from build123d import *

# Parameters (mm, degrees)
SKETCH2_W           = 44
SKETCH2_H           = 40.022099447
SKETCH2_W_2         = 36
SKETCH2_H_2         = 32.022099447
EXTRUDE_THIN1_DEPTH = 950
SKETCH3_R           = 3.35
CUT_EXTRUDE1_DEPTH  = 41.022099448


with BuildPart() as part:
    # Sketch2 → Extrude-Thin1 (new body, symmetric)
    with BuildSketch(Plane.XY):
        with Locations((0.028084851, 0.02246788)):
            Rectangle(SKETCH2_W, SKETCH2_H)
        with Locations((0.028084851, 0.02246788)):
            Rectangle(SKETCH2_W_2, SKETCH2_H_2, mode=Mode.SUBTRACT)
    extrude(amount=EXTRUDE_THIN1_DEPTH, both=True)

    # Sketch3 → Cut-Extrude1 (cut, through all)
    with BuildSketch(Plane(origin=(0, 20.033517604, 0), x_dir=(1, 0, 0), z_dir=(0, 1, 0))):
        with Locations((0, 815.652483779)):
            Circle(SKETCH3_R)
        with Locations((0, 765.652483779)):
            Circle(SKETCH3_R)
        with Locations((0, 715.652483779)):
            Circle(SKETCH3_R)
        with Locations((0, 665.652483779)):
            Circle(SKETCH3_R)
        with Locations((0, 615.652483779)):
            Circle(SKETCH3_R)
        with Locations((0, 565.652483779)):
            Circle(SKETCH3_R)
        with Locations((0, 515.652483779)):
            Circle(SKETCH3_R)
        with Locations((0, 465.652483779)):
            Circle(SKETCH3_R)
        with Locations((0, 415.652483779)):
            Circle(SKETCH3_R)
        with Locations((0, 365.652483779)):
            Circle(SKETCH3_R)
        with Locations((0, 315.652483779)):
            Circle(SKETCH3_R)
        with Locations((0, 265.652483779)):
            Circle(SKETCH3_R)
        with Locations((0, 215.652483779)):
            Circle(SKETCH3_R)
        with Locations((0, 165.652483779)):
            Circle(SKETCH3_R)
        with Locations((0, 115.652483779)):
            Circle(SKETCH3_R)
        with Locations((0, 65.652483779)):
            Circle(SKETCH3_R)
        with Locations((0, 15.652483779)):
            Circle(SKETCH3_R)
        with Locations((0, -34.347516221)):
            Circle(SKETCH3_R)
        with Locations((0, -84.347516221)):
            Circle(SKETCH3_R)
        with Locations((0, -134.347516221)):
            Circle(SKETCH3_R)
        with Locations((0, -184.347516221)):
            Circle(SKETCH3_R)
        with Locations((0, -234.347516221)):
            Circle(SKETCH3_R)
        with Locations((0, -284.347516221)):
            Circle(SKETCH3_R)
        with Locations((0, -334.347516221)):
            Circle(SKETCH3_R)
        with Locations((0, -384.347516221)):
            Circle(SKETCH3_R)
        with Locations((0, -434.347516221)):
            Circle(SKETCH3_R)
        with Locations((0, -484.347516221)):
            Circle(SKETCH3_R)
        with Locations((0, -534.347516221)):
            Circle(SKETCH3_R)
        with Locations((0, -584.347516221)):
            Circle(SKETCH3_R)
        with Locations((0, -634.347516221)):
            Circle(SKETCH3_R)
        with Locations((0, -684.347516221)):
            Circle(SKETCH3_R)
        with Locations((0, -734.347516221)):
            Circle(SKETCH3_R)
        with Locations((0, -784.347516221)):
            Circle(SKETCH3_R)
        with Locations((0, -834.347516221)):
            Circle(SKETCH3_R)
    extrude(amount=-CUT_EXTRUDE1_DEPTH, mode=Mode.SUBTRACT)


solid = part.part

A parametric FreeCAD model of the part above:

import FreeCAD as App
import Part
import Sketcher
from FreeCAD import Vector
Q = App.Units.Quantity


def add_polygon(sketch, points):
    """Adds a closed chain of lines whose ends are joined by coincident constraints."""
    first, n = sketch.GeometryCount, len(points)
    for a, b in zip(points, points[1:] + points[:1]):
        sketch.addGeometry(Part.LineSegment(App.Vector(*a, 0), App.Vector(*b, 0)), False)
    for i in range(n):
        sketch.addConstraint(Sketcher.Constraint("Coincident", first + i, 2, first + (i + 1) % n, 1))

doc = App.newDocument("Part")
body = doc.addObject("PartDesign::Body", "Body")

# Sketch on XY plane
sketch1 = body.newObject("Sketcher::SketchObject", "Sketch")
sketch1.AttachmentSupport = (doc.getObject("XY_Plane"), [""])
sketch1.MapMode = "FlatFace"
add_polygon(sketch1, [(-22, 20), (-22, -20), (22, -20), (22, 20)])  # lines 0-3
add_polygon(sketch1, [(18, -16), (-18, -16), (-18, 16), (18, 16)])  # lines 4-7
sketch1.addConstraint([
    Sketcher.Constraint("Vertical", 0),
    Sketcher.Constraint("Horizontal", 1),
    Sketcher.Constraint("Vertical", 2),
    Sketcher.Constraint("Horizontal", 3),
    Sketcher.Constraint("Horizontal", 4),
    Sketcher.Constraint("Vertical", 5),
    Sketcher.Constraint("Horizontal", 6),
    Sketcher.Constraint("Vertical", 7),
    Sketcher.Constraint("DistanceX", 1, 1, 1, 2, Q("44 mm")),
    Sketcher.Constraint("DistanceX", 4, 2, 4, 1, Q("36 mm")),
    Sketcher.Constraint("DistanceX", 0, 2, 4, 2, Q("4 mm")),
    Sketcher.Constraint("DistanceY", 0, 2, 4, 2, Q("4 mm")),
    Sketcher.Constraint("DistanceY", 5, 2, 3, 2, Q("4 mm")),
    Sketcher.Constraint("DistanceY", 0, 2, 0, 1, Q("40.022099 mm")),
    Sketcher.Constraint("DistanceY", 0, 2, -1, 1, Q("19.988582 mm")),
    Sketcher.Constraint("DistanceX", 0, 2, -1, 1, Q("21.971915 mm")),
])
pad1 = body.newObject("PartDesign::Pad", "Pad")
pad1.Profile = sketch1
pad1.Length = 1900
pad1.Midplane = True

# Sketch on XZ plane
sketch2 = body.newObject("Sketcher::SketchObject", "Sketch001")
sketch2.AttachmentSupport = (doc.getObject("XZ_Plane"), [""])
sketch2.MapMode = "FlatFace"
sketch2.AttachmentOffset = App.Placement(Vector(0, 0, -20.033518), App.Rotation())
sketch2.addGeometry([
    Part.Circle(Vector(0, -815.7, 0), Vector(0, 0, 1), 3.4),  # 0
    Part.Circle(Vector(0, -765.7, 0), Vector(0, 0, 1), 3.4),  # 1
    Part.Circle(Vector(0, -715.7, 0), Vector(0, 0, 1), 3.4),  # 2
    Part.Circle(Vector(0, -665.7, 0), Vector(0, 0, 1), 3.4),  # 3
    Part.Circle(Vector(0, -615.7, 0), Vector(0, 0, 1), 3.4),  # 4
    Part.Circle(Vector(0, -565.7, 0), Vector(0, 0, 1), 3.4),  # 5
    Part.Circle(Vector(0, -515.7, 0), Vector(0, 0, 1), 3.4),  # 6
    Part.Circle(Vector(0, -465.7, 0), Vector(0, 0, 1), 3.4),  # 7
    Part.Circle(Vector(0, -415.7, 0), Vector(0, 0, 1), 3.4),  # 8
    Part.Circle(Vector(0, -365.7, 0), Vector(0, 0, 1), 3.4),  # 9
    Part.Circle(Vector(0, -315.7, 0), Vector(0, 0, 1), 3.4),  # 10
    Part.Circle(Vector(0, -265.7, 0), Vector(0, 0, 1), 3.4),  # 11
    Part.Circle(Vector(0, -215.7, 0), Vector(0, 0, 1), 3.4),  # 12
    Part.Circle(Vector(0, -165.7, 0), Vector(0, 0, 1), 3.4),  # 13
    Part.Circle(Vector(0, -115.7, 0), Vector(0, 0, 1), 3.4),  # 14
    Part.Circle(Vector(0, -65.7, 0), Vector(0, 0, 1), 3.4),  # 15
    Part.Circle(Vector(0, -15.7, 0), Vector(0, 0, 1), 3.4),  # 16
    Part.Circle(Vector(0, 34.3, 0), Vector(0, 0, 1), 3.4),  # 17
    Part.Circle(Vector(0, 84.3, 0), Vector(0, 0, 1), 3.4),  # 18
    Part.Circle(Vector(0, 134.3, 0), Vector(0, 0, 1), 3.4),  # 19
    Part.Circle(Vector(0, 184.3, 0), Vector(0, 0, 1), 3.4),  # 20
    Part.Circle(Vector(0, 234.3, 0), Vector(0, 0, 1), 3.4),  # 21
    Part.Circle(Vector(0, 284.3, 0), Vector(0, 0, 1), 3.4),  # 22
    Part.Circle(Vector(0, 334.3, 0), Vector(0, 0, 1), 3.4),  # 23
    Part.Circle(Vector(0, 384.3, 0), Vector(0, 0, 1), 3.4),  # 24
    Part.Circle(Vector(0, 434.3, 0), Vector(0, 0, 1), 3.4),  # 25
    Part.Circle(Vector(0, 484.3, 0), Vector(0, 0, 1), 3.4),  # 26
    Part.Circle(Vector(0, 534.3, 0), Vector(0, 0, 1), 3.4),  # 27
    Part.Circle(Vector(0, 584.3, 0), Vector(0, 0, 1), 3.4),  # 28
    Part.Circle(Vector(0, 634.3, 0), Vector(0, 0, 1), 3.4),  # 29
    Part.Circle(Vector(0, 684.3, 0), Vector(0, 0, 1), 3.4),  # 30
    Part.Circle(Vector(0, 734.3, 0), Vector(0, 0, 1), 3.4),  # 31
    Part.Circle(Vector(0, 784.3, 0), Vector(0, 0, 1), 3.4),  # 32
    Part.Circle(Vector(0, 834.3, 0), Vector(0, 0, 1), 3.4),  # 33
], False)
sketch2.addConstraint([
    Sketcher.Constraint("Equal", 0, 1),
    Sketcher.Constraint("Equal", 1, 2),
    Sketcher.Constraint("Equal", 2, 3),
    Sketcher.Constraint("Equal", 3, 4),
    Sketcher.Constraint("Equal", 4, 5),
    Sketcher.Constraint("Equal", 5, 6),
    Sketcher.Constraint("Equal", 6, 7),
    Sketcher.Constraint("Equal", 7, 8),
    Sketcher.Constraint("Equal", 8, 9),
    Sketcher.Constraint("Equal", 9, 10),
    Sketcher.Constraint("Equal", 10, 11),
    Sketcher.Constraint("Equal", 11, 12),
    Sketcher.Constraint("Equal", 12, 13),
    Sketcher.Constraint("Equal", 13, 14),
    Sketcher.Constraint("Equal", 14, 15),
    Sketcher.Constraint("Equal", 15, 16),
    Sketcher.Constraint("Equal", 16, 17),
    Sketcher.Constraint("Equal", 17, 18),
    Sketcher.Constraint("Equal", 18, 19),
    Sketcher.Constraint("Equal", 19, 20),
    Sketcher.Constraint("Equal", 20, 21),
    Sketcher.Constraint("Equal", 21, 22),
    Sketcher.Constraint("Equal", 22, 23),
    Sketcher.Constraint("Equal", 23, 24),
    Sketcher.Constraint("Equal", 24, 25),
    Sketcher.Constraint("Equal", 25, 26),
    Sketcher.Constraint("Equal", 26, 27),
    Sketcher.Constraint("Equal", 27, 28),
    Sketcher.Constraint("Equal", 28, 29),
    Sketcher.Constraint("Equal", 29, 30),
    Sketcher.Constraint("Equal", 30, 31),
    Sketcher.Constraint("Equal", 31, 32),
    Sketcher.Constraint("Equal", 32, 33),
    Sketcher.Constraint("PointOnObject", 0, 3, -2),
    Sketcher.Constraint("PointOnObject", 1, 3, -2),
    Sketcher.Constraint("PointOnObject", 2, 3, -2),
    Sketcher.Constraint("PointOnObject", 3, 3, -2),
    Sketcher.Constraint("PointOnObject", 4, 3, -2),
    Sketcher.Constraint("PointOnObject", 5, 3, -2),
    Sketcher.Constraint("PointOnObject", 6, 3, -2),
    Sketcher.Constraint("PointOnObject", 7, 3, -2),
    Sketcher.Constraint("PointOnObject", 8, 3, -2),
    Sketcher.Constraint("PointOnObject", 9, 3, -2),
    Sketcher.Constraint("PointOnObject", 10, 3, -2),
    Sketcher.Constraint("PointOnObject", 11, 3, -2),
    Sketcher.Constraint("PointOnObject", 12, 3, -2),
    Sketcher.Constraint("PointOnObject", 13, 3, -2),
    Sketcher.Constraint("PointOnObject", 14, 3, -2),
    Sketcher.Constraint("PointOnObject", 15, 3, -2),
    Sketcher.Constraint("PointOnObject", 16, 3, -2),
    Sketcher.Constraint("PointOnObject", 17, 3, -2),
    Sketcher.Constraint("PointOnObject", 18, 3, -2),
    Sketcher.Constraint("PointOnObject", 19, 3, -2),
    Sketcher.Constraint("PointOnObject", 20, 3, -2),
    Sketcher.Constraint("PointOnObject", 21, 3, -2),
    Sketcher.Constraint("PointOnObject", 22, 3, -2),
    Sketcher.Constraint("PointOnObject", 23, 3, -2),
    Sketcher.Constraint("PointOnObject", 24, 3, -2),
    Sketcher.Constraint("PointOnObject", 25, 3, -2),
    Sketcher.Constraint("PointOnObject", 26, 3, -2),
    Sketcher.Constraint("PointOnObject", 27, 3, -2),
    Sketcher.Constraint("PointOnObject", 28, 3, -2),
    Sketcher.Constraint("PointOnObject", 29, 3, -2),
    Sketcher.Constraint("PointOnObject", 30, 3, -2),
    Sketcher.Constraint("PointOnObject", 31, 3, -2),
    Sketcher.Constraint("PointOnObject", 32, 3, -2),
    Sketcher.Constraint("PointOnObject", 33, 3, -2),
    Sketcher.Constraint("Diameter", 0, Q("6.7 mm")),
    Sketcher.Constraint("DistanceY", 0, 3, 1, 3, Q("50 mm")),
    Sketcher.Constraint("DistanceY", 1, 3, 2, 3, Q("50 mm")),
    Sketcher.Constraint("DistanceY", 2, 3, 3, 3, Q("50 mm")),
    Sketcher.Constraint("DistanceY", 3, 3, 4, 3, Q("50 mm")),
    Sketcher.Constraint("DistanceY", 4, 3, 5, 3, Q("50 mm")),
    Sketcher.Constraint("DistanceY", 5, 3, 6, 3, Q("50 mm")),
    Sketcher.Constraint("DistanceY", 6, 3, 7, 3, Q("50 mm")),
    Sketcher.Constraint("DistanceY", 7, 3, 8, 3, Q("50 mm")),
    Sketcher.Constraint("DistanceY", 8, 3, 9, 3, Q("50 mm")),
    Sketcher.Constraint("DistanceY", 9, 3, 10, 3, Q("50 mm")),
    Sketcher.Constraint("DistanceY", 10, 3, 11, 3, Q("50 mm")),
    Sketcher.Constraint("DistanceY", 11, 3, 12, 3, Q("50 mm")),
    Sketcher.Constraint("DistanceY", 12, 3, 13, 3, Q("50 mm")),
    Sketcher.Constraint("DistanceY", 13, 3, 14, 3, Q("50 mm")),
    Sketcher.Constraint("DistanceY", 14, 3, 15, 3, Q("50 mm")),
    Sketcher.Constraint("DistanceY", 15, 3, 16, 3, Q("50 mm")),
    Sketcher.Constraint("DistanceY", 16, 3, 17, 3, Q("50 mm")),
    Sketcher.Constraint("DistanceY", 17, 3, 18, 3, Q("50 mm")),
    Sketcher.Constraint("DistanceY", 18, 3, 19, 3, Q("50 mm")),
    Sketcher.Constraint("DistanceY", 19, 3, 20, 3, Q("50 mm")),
    Sketcher.Constraint("DistanceY", 20, 3, 21, 3, Q("50 mm")),
    Sketcher.Constraint("DistanceY", 21, 3, 22, 3, Q("50 mm")),
    Sketcher.Constraint("DistanceY", 22, 3, 23, 3, Q("50 mm")),
    Sketcher.Constraint("DistanceY", 23, 3, 24, 3, Q("50 mm")),
    Sketcher.Constraint("DistanceY", 24, 3, 25, 3, Q("50 mm")),
    Sketcher.Constraint("DistanceY", 25, 3, 26, 3, Q("50 mm")),
    Sketcher.Constraint("DistanceY", 26, 3, 27, 3, Q("50 mm")),
    Sketcher.Constraint("DistanceY", 27, 3, 28, 3, Q("50 mm")),
    Sketcher.Constraint("DistanceY", 28, 3, 29, 3, Q("50 mm")),
    Sketcher.Constraint("DistanceY", 29, 3, 30, 3, Q("50 mm")),
    Sketcher.Constraint("DistanceY", 30, 3, 31, 3, Q("50 mm")),
    Sketcher.Constraint("DistanceY", 31, 3, 32, 3, Q("50 mm")),
    Sketcher.Constraint("DistanceY", 32, 3, 33, 3, Q("50 mm")),
    Sketcher.Constraint("DistanceY", 0, 3, -1, 1, Q("815.652484 mm")),
])
pocket1 = body.newObject("PartDesign::Pocket", "Pocket")
pocket1.Profile = sketch2
pocket1.Type = "ThroughAll"
pocket1.Reversed = True

doc.recompute()
